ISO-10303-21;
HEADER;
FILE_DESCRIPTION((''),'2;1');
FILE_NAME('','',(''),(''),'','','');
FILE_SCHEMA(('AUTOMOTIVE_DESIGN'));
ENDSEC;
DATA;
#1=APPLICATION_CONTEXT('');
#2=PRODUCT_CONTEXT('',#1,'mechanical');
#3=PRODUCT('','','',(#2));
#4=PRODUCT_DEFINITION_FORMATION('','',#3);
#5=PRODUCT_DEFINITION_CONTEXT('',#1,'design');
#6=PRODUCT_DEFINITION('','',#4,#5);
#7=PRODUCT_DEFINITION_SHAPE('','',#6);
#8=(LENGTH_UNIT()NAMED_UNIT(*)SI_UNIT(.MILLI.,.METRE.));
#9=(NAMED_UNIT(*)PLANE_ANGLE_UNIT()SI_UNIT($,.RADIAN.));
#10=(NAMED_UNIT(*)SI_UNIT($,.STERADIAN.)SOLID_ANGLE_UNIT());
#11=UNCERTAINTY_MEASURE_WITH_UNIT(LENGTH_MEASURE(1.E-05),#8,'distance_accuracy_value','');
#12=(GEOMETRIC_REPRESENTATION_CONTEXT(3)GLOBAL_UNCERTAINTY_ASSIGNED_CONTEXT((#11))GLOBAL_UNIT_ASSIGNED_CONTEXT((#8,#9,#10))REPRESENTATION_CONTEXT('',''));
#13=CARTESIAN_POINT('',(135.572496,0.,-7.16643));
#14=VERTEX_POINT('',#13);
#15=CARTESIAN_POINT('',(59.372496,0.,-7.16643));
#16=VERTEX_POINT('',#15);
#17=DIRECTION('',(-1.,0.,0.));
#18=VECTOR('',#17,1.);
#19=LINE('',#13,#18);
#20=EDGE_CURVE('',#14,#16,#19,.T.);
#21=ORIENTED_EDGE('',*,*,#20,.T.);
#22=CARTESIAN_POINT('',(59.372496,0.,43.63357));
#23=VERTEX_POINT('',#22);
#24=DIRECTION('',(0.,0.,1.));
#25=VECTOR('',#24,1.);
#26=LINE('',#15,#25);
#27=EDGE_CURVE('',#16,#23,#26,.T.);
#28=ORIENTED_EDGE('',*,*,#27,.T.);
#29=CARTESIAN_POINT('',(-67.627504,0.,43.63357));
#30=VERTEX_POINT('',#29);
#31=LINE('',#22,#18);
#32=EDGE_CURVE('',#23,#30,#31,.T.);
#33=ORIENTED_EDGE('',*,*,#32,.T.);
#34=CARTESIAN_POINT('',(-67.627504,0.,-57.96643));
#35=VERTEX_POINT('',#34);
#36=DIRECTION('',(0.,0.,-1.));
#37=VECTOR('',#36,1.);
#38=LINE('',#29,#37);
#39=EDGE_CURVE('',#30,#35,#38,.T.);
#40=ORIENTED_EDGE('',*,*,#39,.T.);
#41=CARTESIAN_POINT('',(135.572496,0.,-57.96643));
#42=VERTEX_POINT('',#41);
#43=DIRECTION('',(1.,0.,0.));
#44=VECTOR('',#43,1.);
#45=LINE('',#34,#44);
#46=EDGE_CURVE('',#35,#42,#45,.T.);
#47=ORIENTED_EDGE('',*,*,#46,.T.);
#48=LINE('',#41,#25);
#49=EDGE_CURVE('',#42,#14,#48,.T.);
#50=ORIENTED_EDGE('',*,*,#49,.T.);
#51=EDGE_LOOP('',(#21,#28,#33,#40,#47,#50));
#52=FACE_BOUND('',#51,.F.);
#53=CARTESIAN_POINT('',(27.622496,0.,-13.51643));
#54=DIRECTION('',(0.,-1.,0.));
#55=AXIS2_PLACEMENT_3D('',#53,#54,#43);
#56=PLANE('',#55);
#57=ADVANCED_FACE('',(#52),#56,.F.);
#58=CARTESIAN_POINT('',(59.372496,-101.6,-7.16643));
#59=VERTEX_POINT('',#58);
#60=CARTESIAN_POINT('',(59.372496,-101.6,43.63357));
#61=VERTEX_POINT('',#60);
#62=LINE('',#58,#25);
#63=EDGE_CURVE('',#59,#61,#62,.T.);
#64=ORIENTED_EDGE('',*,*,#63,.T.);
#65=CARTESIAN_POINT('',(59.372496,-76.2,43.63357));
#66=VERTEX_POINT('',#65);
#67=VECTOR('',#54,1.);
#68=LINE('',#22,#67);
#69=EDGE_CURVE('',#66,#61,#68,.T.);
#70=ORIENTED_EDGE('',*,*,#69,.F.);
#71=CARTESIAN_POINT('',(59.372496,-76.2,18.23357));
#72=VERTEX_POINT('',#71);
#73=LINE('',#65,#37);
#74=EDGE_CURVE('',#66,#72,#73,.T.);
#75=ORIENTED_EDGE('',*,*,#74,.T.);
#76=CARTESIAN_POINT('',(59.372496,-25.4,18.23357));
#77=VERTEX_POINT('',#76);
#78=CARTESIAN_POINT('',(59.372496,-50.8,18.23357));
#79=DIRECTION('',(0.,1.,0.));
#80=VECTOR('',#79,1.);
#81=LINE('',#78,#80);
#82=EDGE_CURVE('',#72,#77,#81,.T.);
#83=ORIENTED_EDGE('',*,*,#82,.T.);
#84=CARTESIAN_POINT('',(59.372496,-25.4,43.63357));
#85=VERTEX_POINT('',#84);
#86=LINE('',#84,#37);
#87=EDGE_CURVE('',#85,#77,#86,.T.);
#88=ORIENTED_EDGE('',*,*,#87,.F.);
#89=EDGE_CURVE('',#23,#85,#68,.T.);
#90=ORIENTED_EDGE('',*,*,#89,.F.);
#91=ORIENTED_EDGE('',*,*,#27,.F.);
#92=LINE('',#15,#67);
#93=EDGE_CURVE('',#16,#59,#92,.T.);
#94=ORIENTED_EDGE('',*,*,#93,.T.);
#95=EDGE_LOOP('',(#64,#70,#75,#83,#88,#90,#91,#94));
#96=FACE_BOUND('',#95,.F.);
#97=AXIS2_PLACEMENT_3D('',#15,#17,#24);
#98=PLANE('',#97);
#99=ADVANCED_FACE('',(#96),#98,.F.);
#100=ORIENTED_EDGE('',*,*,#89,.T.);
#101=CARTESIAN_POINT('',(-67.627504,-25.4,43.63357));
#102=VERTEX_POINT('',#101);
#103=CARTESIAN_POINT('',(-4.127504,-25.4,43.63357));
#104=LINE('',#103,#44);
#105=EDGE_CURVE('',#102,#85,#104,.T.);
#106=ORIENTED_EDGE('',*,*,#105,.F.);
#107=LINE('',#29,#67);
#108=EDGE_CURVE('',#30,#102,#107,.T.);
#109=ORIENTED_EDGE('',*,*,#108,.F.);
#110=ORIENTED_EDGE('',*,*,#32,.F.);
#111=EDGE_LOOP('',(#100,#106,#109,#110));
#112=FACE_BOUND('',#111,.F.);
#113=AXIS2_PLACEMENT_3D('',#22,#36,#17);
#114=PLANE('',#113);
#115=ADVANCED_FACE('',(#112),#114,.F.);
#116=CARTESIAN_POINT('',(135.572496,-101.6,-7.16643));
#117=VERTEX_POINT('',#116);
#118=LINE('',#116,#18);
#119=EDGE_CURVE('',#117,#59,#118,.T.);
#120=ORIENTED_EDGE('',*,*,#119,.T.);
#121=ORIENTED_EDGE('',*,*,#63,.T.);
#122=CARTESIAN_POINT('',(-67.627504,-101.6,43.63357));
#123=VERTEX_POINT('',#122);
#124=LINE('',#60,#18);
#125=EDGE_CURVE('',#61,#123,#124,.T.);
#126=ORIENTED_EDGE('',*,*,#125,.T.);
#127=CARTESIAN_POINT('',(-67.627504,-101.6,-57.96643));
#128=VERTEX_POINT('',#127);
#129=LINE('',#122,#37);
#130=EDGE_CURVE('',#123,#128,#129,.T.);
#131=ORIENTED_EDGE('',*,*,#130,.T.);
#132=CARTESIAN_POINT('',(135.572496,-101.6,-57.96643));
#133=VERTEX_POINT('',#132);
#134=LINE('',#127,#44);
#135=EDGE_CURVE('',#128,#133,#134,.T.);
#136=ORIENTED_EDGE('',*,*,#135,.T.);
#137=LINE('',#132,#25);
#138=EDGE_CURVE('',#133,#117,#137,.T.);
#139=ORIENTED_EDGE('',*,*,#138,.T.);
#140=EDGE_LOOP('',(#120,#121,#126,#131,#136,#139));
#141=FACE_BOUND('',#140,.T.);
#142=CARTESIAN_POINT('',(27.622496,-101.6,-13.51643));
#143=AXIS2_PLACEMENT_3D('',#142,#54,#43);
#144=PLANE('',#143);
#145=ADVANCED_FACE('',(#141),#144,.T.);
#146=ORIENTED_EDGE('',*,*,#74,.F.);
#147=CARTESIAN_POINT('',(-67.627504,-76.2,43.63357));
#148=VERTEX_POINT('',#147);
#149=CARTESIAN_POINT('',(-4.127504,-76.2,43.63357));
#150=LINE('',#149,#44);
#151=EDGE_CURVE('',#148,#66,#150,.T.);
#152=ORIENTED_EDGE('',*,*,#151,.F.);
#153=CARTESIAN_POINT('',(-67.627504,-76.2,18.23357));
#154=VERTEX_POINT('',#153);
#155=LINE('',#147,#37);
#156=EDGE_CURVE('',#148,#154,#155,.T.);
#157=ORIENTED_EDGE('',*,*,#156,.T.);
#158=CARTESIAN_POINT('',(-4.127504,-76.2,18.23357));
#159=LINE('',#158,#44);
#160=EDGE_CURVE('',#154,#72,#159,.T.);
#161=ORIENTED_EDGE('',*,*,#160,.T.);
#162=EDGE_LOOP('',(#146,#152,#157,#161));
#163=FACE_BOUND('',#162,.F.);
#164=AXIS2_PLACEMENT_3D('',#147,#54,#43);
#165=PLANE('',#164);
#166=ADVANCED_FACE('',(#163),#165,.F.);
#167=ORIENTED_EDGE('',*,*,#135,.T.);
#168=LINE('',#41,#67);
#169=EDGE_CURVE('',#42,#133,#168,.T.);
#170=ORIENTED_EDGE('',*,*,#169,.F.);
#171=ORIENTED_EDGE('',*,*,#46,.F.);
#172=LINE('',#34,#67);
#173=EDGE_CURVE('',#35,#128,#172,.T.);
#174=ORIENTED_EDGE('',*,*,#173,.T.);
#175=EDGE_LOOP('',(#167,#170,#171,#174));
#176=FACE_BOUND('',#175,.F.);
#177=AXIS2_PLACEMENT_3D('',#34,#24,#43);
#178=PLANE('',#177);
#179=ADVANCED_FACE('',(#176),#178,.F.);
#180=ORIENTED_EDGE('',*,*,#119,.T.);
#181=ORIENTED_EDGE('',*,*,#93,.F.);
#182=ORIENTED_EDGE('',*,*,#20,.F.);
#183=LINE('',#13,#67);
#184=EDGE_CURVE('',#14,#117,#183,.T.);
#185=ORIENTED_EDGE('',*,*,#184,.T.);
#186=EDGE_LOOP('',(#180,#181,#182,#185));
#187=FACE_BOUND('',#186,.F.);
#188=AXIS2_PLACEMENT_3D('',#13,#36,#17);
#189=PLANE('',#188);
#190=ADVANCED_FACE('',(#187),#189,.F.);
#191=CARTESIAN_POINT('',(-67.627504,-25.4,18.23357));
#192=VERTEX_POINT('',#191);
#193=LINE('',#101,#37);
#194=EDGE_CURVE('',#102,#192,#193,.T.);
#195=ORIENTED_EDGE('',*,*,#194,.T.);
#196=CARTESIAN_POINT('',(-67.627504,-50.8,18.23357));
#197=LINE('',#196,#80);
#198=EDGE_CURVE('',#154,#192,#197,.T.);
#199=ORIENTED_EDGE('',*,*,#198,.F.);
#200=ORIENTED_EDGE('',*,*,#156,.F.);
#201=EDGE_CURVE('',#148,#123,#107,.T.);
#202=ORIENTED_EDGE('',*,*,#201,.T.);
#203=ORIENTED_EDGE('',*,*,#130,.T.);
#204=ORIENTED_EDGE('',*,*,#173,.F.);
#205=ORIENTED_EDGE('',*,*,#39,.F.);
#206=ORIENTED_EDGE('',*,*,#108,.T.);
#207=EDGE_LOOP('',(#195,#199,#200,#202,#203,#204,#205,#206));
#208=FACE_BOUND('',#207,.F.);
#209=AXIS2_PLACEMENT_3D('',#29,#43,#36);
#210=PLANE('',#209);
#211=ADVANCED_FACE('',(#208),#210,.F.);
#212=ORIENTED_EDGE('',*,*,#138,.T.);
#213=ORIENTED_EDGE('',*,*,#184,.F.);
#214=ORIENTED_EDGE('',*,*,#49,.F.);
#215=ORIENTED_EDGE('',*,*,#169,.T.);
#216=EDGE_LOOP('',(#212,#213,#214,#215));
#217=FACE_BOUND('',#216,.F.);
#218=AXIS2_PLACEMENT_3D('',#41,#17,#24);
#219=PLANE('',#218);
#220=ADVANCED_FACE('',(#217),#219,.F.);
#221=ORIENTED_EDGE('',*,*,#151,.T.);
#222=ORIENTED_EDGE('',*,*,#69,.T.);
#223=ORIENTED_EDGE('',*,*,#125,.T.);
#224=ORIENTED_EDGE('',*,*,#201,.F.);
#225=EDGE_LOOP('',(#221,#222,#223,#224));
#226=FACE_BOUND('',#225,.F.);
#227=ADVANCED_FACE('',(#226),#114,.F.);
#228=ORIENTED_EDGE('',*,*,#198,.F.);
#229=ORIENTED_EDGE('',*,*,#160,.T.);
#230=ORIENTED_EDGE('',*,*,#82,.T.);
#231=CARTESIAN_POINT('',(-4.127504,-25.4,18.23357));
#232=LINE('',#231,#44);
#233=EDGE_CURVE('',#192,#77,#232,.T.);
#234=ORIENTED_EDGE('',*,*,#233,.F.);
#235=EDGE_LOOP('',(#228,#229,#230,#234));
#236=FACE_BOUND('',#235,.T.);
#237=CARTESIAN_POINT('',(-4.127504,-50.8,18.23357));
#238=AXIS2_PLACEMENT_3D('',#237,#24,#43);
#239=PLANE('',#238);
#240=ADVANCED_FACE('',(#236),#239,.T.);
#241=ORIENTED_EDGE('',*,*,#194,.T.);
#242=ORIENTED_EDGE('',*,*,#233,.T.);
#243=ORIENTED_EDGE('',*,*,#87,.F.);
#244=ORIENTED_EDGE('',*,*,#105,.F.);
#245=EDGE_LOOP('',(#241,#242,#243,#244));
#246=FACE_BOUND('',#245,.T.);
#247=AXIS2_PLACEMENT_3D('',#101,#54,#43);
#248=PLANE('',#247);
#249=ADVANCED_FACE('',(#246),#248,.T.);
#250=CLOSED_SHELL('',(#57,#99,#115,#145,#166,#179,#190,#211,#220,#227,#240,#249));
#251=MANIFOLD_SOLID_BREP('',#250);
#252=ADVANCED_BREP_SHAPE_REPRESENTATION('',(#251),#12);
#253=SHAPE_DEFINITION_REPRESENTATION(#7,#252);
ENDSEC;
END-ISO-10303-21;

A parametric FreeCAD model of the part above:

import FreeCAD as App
import Part
import Sketcher
from FreeCAD import Vector
Q = App.Units.Quantity


def add_polygon(sketch, points):
    """Adds a closed chain of lines whose ends are joined by coincident constraints."""
    first, n = sketch.GeometryCount, len(points)
    for a, b in zip(points, points[1:] + points[:1]):
        sketch.addGeometry(Part.LineSegment(App.Vector(*a, 0), App.Vector(*b, 0)), False)
    for i in range(n):
        sketch.addConstraint(Sketcher.Constraint("Coincident", first + i, 2, first + (i + 1) % n, 1))

doc = App.newDocument("Part")
params = doc.addObject("Spreadsheet::Sheet", "Params")
for row, (alias, value) in enumerate([
    ("sketch1_width", "5 in"),
    ("sketch1_width2", "8 in"),
    ("sketch1_height", "4 in"),
    ("pad1_length", "4 in"),
    ("sketch2_width", "5 in"),
    ("sketch2_height", "2 in"),
    ("pocket1_length", "1 in"),
], start=1):
    params.set(f"A{row}", alias)
    params.set(f"B{row}", "=" + value)
    params.setAlias(f"B{row}", alias)

body = doc.addObject("PartDesign::Body", "Body")

sketch1 = body.newObject("Sketcher::SketchObject", "Sketch")
sketch1.AttachmentSupport = (doc.getObject("XZ_Plane"), [""])
sketch1.MapMode = "FlatFace"
add_polygon(sketch1, [(59, 44), (-68, 44), (-68, -58), (136, -58), (136, -7), (59, -7)])
sketch1.addConstraint(Sketcher.Constraint("Horizontal", 0))
sketch1.addConstraint(Sketcher.Constraint("Vertical", 1))
sketch1.addConstraint(Sketcher.Constraint("Horizontal", 2))
sketch1.addConstraint(Sketcher.Constraint("Vertical", 3))
sketch1.addConstraint(Sketcher.Constraint("Horizontal", 4))
sketch1.addConstraint(Sketcher.Constraint("Vertical", 5))
sketch1.addConstraint(Sketcher.Constraint("Equal", 3, 5))
sketch1.addConstraint(Sketcher.Constraint("DistanceX", 0, 2, 0, 1, Q("5 in")))
sketch1.addConstraint(Sketcher.Constraint("DistanceX", 2, 1, 2, 2, Q("8 in")))
sketch1.addConstraint(Sketcher.Constraint("DistanceY", 1, 2, 1, 1, Q("4 in")))
sketch1.addConstraint(Sketcher.Constraint("DistanceX", 0, 2, -1, 1, Q("2.6625002 in")))
sketch1.addConstraint(Sketcher.Constraint("DistanceY", -1, 1, 0, 2, 43.63357))
sketch1.setExpression("Constraints[13]", "Params.sketch1_width")
sketch1.setExpression("Constraints[14]", "Params.sketch1_width2")
sketch1.setExpression("Constraints[15]", "Params.sketch1_height")
pad1 = body.newObject("PartDesign::Pad", "Pad")
pad1.Profile = sketch1
pad1.setExpression("Length", "Params.pad1_length")

sketch2 = body.newObject("Sketcher::SketchObject", "Sketch001")
sketch2.AttachmentSupport = (doc.getObject("XY_Plane"), [""])
sketch2.MapMode = "FlatFace"
sketch2.AttachmentOffset = App.Placement(Vector(0, 0, 43.63357), App.Rotation())
add_polygon(sketch2, [(-68, -25), (-68, -76), (59, -76), (59, -25)])
sketch2.addConstraint(Sketcher.Constraint("Vertical", 0))
sketch2.addConstraint(Sketcher.Constraint("Horizontal", 1))
sketch2.addConstraint(Sketcher.Constraint("Vertical", 2))
sketch2.addConstraint(Sketcher.Constraint("Horizontal", 3))
sketch2.addConstraint(Sketcher.Constraint("DistanceX", 1, 1, 1, 2, Q("5 in")))
sketch2.addConstraint(Sketcher.Constraint("DistanceY", 0, 2, 0, 1, Q("2 in")))
sketch2.addConstraint(Sketcher.Constraint("DistanceY", 0, 2, -1, 1, Q("3 in")))
sketch2.addConstraint(Sketcher.Constraint("DistanceX", 0, 2, -1, 1, Q("2.6625002 in")))
sketch2.setExpression("Constraints[8]", "Params.sketch2_width")
sketch2.setExpression("Constraints[9]", "Params.sketch2_height")
pocket1 = body.newObject("PartDesign::Pocket", "Pocket")
pocket1.Profile = sketch2
pocket1.setExpression("Length", "Params.pocket1_length")

doc.recompute()
